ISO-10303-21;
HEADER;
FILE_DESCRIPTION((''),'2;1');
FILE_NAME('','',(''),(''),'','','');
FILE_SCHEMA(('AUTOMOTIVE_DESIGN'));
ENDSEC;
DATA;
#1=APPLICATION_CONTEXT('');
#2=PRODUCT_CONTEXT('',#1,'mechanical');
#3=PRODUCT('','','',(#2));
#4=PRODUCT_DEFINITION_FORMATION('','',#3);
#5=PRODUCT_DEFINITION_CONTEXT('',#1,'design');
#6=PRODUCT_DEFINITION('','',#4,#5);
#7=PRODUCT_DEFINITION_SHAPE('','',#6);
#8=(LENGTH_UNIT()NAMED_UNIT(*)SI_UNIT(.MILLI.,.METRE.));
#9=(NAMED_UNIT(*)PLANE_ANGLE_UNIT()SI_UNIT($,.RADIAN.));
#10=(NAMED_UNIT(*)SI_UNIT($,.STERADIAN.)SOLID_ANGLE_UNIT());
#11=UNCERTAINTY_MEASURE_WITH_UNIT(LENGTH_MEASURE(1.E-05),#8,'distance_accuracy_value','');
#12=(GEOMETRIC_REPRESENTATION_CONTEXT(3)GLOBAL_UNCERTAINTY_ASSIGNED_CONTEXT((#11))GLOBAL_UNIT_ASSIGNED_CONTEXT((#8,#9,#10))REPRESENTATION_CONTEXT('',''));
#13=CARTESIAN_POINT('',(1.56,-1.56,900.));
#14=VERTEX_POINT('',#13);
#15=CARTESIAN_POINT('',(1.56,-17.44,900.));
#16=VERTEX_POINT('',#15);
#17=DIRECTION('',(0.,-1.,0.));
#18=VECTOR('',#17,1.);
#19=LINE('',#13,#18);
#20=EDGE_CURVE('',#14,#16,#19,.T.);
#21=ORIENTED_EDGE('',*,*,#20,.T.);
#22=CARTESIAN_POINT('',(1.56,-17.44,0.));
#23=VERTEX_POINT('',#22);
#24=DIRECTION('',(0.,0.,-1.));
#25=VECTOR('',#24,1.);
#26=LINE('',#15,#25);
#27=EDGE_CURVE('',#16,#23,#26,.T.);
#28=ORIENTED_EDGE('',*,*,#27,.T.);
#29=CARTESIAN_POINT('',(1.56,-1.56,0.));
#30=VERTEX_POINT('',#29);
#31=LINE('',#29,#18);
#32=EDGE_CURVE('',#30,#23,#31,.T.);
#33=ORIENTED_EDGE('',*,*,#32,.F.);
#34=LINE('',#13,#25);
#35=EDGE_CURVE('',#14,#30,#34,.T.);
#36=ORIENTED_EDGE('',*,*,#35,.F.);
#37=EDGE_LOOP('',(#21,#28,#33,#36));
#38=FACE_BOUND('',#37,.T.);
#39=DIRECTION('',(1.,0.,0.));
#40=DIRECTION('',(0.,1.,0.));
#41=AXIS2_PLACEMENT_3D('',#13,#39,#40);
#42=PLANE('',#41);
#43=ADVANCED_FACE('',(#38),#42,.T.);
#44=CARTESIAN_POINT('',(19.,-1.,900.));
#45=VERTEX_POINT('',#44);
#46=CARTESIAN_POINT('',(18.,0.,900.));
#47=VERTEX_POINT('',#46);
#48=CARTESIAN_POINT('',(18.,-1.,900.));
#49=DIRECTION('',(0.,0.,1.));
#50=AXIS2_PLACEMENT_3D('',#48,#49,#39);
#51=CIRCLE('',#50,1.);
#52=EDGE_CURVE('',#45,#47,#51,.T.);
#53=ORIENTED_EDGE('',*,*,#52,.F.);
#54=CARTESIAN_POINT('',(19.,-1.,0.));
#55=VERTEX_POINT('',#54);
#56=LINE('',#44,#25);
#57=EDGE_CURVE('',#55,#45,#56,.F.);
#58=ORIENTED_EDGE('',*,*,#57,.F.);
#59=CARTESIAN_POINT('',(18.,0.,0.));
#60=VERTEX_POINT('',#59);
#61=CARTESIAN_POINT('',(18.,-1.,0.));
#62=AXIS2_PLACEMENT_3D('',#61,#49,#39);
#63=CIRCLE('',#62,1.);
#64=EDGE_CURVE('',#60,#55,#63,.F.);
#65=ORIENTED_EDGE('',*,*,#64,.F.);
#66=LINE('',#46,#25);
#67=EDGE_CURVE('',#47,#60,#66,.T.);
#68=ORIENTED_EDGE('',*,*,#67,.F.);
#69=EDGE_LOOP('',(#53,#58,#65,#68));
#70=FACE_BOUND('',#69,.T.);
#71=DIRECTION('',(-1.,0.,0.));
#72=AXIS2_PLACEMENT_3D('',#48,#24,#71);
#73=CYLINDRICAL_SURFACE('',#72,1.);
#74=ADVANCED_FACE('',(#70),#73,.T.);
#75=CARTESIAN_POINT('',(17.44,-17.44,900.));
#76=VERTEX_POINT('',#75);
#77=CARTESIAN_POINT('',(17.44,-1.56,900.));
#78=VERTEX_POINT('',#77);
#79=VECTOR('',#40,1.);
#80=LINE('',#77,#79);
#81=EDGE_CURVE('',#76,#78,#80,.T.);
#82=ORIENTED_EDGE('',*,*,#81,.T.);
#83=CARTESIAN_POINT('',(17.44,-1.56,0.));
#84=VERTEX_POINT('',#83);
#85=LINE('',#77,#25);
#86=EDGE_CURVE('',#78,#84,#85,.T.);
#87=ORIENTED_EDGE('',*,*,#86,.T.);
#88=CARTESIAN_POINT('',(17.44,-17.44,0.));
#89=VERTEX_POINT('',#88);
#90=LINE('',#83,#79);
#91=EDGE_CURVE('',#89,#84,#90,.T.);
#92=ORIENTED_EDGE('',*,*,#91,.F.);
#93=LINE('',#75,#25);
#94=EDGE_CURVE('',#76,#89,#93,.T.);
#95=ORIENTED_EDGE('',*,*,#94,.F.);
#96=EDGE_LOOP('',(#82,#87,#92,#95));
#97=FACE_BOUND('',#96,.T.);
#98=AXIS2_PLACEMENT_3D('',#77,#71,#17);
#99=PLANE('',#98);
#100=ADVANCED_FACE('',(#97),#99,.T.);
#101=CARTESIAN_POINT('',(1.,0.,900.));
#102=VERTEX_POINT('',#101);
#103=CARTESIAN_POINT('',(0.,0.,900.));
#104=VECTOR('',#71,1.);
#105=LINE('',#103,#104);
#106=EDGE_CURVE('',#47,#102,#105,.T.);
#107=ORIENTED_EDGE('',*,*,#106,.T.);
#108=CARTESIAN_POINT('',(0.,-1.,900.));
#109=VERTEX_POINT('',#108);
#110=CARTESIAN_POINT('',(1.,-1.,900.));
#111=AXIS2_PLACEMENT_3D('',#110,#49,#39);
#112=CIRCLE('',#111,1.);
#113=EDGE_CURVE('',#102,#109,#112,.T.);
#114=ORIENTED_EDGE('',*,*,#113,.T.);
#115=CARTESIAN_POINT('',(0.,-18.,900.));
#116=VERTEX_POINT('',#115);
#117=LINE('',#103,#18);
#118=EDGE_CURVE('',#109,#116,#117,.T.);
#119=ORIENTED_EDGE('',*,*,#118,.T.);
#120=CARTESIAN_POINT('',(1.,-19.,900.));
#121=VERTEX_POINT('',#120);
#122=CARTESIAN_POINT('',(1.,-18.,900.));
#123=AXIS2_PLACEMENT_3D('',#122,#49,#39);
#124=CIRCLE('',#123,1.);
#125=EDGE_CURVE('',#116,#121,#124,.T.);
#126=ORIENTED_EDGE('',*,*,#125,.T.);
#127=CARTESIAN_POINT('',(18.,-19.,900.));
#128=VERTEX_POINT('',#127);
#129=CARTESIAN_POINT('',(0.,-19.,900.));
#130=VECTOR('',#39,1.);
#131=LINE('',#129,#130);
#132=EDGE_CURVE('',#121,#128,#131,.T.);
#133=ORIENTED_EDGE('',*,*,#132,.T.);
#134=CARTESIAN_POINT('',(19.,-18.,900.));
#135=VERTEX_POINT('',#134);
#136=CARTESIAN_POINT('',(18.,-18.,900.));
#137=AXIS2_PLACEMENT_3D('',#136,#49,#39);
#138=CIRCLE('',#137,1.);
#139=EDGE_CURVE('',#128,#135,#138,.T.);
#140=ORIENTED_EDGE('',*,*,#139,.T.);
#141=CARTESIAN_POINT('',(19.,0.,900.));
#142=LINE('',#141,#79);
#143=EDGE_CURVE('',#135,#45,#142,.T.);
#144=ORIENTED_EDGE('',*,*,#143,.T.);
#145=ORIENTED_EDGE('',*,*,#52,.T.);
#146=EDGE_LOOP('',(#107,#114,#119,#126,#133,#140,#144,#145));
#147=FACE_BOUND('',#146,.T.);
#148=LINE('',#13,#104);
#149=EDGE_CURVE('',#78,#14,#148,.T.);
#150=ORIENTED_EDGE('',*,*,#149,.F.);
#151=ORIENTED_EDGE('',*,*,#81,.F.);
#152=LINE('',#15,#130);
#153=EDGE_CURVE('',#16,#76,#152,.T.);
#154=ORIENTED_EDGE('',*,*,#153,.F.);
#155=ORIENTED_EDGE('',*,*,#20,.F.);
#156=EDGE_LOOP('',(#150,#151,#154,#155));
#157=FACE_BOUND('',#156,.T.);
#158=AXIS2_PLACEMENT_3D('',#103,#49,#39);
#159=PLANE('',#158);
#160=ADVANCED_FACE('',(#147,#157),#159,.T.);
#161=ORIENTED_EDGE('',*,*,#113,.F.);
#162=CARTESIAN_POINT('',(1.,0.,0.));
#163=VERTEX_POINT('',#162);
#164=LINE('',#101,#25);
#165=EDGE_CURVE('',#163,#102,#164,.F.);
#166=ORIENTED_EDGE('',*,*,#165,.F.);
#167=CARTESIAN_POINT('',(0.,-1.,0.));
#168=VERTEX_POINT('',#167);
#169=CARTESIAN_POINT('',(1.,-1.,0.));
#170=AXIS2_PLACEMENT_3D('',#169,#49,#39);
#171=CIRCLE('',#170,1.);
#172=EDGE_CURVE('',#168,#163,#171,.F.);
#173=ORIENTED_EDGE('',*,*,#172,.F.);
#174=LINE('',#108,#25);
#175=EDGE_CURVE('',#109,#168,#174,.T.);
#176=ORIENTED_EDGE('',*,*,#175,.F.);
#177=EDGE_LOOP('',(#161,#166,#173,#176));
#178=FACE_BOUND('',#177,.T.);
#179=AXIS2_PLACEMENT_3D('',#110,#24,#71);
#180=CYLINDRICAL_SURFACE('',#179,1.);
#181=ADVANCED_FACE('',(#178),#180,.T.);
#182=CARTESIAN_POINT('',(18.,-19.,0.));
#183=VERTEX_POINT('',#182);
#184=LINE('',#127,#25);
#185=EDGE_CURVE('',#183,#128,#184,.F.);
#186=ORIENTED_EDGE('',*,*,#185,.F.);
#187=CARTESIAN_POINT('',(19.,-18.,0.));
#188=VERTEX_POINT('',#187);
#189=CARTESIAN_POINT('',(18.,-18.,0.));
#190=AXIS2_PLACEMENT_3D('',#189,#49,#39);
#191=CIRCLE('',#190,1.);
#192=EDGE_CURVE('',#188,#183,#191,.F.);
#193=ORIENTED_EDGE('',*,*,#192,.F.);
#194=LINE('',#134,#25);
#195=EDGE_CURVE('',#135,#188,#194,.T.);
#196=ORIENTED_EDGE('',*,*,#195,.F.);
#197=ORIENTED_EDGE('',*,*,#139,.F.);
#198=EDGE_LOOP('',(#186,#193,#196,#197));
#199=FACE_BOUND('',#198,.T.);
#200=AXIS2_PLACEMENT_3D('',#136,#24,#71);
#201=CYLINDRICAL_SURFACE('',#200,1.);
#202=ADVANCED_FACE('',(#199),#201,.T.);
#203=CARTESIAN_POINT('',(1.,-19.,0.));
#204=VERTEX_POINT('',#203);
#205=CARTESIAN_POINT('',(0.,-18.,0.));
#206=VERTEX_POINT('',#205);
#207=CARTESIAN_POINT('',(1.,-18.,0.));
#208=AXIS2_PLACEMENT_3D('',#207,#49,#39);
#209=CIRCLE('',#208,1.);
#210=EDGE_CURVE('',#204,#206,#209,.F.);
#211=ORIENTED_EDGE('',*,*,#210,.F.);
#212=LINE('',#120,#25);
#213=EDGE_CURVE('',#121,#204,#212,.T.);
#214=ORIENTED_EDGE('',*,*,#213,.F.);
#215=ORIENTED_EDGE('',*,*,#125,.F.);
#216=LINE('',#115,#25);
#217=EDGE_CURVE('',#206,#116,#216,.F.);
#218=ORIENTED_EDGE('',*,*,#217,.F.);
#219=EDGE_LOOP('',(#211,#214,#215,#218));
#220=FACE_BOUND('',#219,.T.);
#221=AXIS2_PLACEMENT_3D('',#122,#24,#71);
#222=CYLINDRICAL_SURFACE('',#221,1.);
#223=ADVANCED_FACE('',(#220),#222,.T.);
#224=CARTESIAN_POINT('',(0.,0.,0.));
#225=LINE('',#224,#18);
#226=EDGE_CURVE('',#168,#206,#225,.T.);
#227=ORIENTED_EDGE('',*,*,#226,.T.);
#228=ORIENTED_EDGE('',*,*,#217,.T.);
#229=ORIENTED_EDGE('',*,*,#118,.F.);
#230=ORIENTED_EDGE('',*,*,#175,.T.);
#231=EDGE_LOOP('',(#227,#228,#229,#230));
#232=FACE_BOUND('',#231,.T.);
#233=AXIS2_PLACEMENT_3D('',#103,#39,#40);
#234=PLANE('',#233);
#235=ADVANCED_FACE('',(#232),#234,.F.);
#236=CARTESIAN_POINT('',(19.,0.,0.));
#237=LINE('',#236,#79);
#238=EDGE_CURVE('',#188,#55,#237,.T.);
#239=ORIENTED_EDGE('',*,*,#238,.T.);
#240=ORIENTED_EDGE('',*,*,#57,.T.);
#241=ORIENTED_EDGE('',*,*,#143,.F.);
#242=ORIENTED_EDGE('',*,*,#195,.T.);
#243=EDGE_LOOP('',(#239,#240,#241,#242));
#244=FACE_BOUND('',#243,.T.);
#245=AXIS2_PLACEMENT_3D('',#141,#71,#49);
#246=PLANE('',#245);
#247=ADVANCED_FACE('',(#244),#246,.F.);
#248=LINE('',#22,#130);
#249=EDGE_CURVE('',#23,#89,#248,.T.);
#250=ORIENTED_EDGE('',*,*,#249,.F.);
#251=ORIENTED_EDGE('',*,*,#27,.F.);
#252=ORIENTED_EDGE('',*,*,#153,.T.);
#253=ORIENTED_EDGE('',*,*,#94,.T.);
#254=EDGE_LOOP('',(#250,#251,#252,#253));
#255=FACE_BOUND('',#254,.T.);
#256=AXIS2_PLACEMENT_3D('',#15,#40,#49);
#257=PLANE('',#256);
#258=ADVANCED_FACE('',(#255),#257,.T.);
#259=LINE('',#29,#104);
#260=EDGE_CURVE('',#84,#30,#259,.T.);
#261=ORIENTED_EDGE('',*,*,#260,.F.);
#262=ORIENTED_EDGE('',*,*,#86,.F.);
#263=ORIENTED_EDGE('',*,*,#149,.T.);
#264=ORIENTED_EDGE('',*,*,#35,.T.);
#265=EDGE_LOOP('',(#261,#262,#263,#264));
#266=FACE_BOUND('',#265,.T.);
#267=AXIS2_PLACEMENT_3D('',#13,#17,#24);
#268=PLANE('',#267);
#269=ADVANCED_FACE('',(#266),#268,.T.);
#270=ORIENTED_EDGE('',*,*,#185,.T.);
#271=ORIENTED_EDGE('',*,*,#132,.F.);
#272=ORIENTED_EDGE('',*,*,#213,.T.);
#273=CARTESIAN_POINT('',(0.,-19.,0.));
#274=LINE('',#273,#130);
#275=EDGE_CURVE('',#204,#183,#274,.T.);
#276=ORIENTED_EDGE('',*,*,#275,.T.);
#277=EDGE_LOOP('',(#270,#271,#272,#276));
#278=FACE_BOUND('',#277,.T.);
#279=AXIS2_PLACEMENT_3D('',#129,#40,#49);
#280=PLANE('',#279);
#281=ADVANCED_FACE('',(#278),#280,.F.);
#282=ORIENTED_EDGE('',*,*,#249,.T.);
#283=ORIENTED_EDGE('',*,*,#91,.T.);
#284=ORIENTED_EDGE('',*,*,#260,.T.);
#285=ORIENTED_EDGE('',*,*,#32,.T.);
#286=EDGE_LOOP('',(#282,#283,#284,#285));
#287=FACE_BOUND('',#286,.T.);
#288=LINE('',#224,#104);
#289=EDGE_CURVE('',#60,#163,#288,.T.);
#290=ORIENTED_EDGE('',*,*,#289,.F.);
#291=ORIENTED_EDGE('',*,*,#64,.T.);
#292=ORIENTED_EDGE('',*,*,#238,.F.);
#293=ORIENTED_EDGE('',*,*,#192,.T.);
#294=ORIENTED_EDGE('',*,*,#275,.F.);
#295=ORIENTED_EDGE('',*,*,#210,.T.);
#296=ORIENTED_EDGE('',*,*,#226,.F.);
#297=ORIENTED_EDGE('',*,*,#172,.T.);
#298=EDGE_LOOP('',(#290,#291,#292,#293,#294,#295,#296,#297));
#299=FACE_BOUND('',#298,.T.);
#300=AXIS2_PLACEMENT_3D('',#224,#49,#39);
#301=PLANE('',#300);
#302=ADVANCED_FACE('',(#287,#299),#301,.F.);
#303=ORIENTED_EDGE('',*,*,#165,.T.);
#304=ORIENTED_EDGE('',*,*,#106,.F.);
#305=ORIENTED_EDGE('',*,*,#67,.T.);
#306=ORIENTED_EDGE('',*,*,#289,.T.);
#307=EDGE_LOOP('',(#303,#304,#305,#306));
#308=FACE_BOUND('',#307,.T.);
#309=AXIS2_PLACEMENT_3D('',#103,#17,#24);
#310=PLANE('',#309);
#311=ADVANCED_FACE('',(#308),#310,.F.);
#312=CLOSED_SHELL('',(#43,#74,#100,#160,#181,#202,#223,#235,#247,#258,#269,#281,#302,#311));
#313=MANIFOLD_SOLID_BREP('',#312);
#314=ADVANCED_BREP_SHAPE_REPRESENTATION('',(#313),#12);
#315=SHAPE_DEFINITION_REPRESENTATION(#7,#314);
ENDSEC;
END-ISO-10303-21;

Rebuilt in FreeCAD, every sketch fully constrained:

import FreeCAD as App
import Part
import Sketcher
from FreeCAD import Vector
Q = App.Units.Quantity


def edges_at(feature, points):
    """Names of the edges that pass closest to the given points."""
    edges = feature.Shape.Edges
    near = lambda p: min(range(len(edges)), key=lambda i: edges[i].distToShape(Part.Vertex(*p))[0])
    return sorted({f"Edge{near(p) + 1}" for p in points})

doc = App.newDocument("Part")
params = doc.addObject("Spreadsheet::Sheet", "Params")
for row, (alias, value) in enumerate([
    ("sketch1_width", "19 mm"),
    ("sketch1_width2", "15.88 mm"),
    ("pad1_length", "900 mm"),
    ("fillet_radius", "1 mm"),
], start=1):
    params.set(f"A{row}", alias)
    params.set(f"B{row}", "=" + value)
    params.setAlias(f"B{row}", alias)

body = doc.addObject("PartDesign::Body", "Body")

sketch1 = body.newObject("Sketcher::SketchObject", "Sketch")
sketch1.AttachmentSupport = (doc.getObject("XY_Plane"), [""])
sketch1.MapMode = "FlatFace"
sketch1.addGeometry([
    Part.LineSegment(Vector(0, 0, 0), Vector(0, -19, 0)),
    Part.LineSegment(Vector(0, -19, 0), Vector(19, -19, 0)),
    Part.LineSegment(Vector(19, -19, 0), Vector(19, 0, 0)),
    Part.LineSegment(Vector(19, 0, 0), Vector(0, 0, 0)),
    Part.LineSegment(Vector(17, -17, 0), Vector(2, -17, 0)),
    Part.LineSegment(Vector(2, -17, 0), Vector(2, -2, 0)),
    Part.LineSegment(Vector(2, -2, 0), Vector(17, -2, 0)),
    Part.LineSegment(Vector(17, -2, 0), Vector(17, -17, 0)),
], False)
sketch1.addConstraint([
    Sketcher.Constraint("Coincident", 0, 2, 1, 1),
    Sketcher.Constraint("Coincident", 1, 2, 2, 1),
    Sketcher.Constraint("Coincident", 2, 2, 3, 1),
    Sketcher.Constraint("Coincident", 3, 2, 0, 1),
    Sketcher.Constraint("Coincident", 4, 2, 5, 1),
    Sketcher.Constraint("Coincident", 5, 2, 6, 1),
    Sketcher.Constraint("Coincident", 6, 2, 7, 1),
    Sketcher.Constraint("Coincident", 7, 2, 4, 1),
    Sketcher.Constraint("Vertical", 0),
    Sketcher.Constraint("Horizontal", 1),
    Sketcher.Constraint("Vertical", 2),
    Sketcher.Constraint("Horizontal", 3),
    Sketcher.Constraint("Horizontal", 4),
    Sketcher.Constraint("Vertical", 5),
    Sketcher.Constraint("Horizontal", 6),
    Sketcher.Constraint("Vertical", 7),
    Sketcher.Constraint("Coincident", 3, 2, -1, 1),
    Sketcher.Constraint("Equal", 3, 0),
    Sketcher.Constraint("Equal", 6, 5),
    Sketcher.Constraint("DistanceX", 1, 1, 1, 2, Q("19 mm")),
    Sketcher.Constraint("DistanceX", 4, 2, 4, 1, Q("15.88 mm")),
    Sketcher.Constraint("DistanceX", -1, 1, 4, 2, Q("1.56 mm")),
    Sketcher.Constraint("DistanceY", 4, 2, -1, 1, Q("17.44 mm")),
])
sketch1.setExpression("Constraints[19]", "Params.sketch1_width")
sketch1.setExpression("Constraints[20]", "Params.sketch1_width2")
pad1 = body.newObject("PartDesign::Pad", "Pad")
pad1.Profile = sketch1
pad1.setExpression("Length", "Params.pad1_length")
doc.recompute()

fillet = body.newObject("PartDesign::Fillet", "Fillet")
fillet.Base = (pad1, edges_at(pad1, [
    (0, 0, 450),
    (19, 0, 450),
    (19, -19, 450),
    (0, -19, 450),
]))
fillet.setExpression("Radius", "Params.fillet_radius")

doc.recompute()
